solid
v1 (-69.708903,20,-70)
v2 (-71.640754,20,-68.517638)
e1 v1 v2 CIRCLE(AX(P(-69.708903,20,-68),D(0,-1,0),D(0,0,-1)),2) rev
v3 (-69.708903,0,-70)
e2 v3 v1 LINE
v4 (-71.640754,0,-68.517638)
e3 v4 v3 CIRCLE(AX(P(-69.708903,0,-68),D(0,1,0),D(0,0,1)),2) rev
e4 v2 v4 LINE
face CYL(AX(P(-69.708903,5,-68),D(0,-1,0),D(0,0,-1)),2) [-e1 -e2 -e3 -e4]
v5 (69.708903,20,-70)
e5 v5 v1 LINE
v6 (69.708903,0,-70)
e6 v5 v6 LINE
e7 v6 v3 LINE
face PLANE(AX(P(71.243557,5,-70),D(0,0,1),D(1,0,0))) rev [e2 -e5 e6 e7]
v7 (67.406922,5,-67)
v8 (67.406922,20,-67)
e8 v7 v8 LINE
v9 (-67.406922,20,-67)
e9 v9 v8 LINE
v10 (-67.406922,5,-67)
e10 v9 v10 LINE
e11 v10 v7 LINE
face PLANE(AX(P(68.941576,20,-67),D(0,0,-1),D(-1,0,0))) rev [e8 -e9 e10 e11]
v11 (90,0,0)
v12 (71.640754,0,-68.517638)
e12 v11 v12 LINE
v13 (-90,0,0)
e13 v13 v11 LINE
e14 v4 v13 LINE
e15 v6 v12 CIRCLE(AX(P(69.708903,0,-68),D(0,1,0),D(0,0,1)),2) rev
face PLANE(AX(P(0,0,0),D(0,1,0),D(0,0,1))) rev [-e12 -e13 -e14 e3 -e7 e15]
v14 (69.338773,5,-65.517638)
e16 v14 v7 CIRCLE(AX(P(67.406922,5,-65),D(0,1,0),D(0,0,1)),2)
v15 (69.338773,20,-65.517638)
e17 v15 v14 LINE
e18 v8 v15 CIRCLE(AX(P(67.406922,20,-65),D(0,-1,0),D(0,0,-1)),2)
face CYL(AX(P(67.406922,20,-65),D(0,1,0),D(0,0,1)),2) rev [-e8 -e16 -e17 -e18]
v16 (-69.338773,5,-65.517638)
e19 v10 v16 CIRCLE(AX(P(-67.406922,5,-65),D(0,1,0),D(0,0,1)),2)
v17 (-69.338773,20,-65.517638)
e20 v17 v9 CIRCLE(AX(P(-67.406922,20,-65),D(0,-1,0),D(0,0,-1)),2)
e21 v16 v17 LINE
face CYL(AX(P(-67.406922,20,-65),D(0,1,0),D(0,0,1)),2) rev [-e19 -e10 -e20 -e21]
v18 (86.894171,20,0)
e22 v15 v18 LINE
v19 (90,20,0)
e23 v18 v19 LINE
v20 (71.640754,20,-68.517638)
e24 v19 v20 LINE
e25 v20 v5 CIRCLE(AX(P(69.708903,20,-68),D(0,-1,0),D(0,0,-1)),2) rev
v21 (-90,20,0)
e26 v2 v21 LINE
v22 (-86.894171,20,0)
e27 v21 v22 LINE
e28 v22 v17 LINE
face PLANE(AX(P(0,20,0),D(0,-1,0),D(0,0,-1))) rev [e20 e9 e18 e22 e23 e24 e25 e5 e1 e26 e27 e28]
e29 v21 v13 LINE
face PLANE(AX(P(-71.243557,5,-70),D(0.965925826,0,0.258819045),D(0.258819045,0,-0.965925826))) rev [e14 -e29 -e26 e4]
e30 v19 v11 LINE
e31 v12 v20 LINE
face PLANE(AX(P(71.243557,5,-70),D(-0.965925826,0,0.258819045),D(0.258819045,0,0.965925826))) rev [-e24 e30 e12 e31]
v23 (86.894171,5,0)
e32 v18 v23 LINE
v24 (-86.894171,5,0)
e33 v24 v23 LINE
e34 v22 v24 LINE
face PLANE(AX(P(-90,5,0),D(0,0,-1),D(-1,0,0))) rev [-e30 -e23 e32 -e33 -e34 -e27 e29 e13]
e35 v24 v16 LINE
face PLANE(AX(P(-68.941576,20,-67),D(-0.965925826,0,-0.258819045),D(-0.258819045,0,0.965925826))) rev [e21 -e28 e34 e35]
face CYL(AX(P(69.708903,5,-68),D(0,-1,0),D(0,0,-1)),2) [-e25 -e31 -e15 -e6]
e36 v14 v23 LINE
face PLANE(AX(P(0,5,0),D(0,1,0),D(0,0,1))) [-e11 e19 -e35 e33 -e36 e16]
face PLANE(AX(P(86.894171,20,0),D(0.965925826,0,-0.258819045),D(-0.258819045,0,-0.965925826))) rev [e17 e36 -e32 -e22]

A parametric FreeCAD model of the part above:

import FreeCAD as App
import Part
import Sketcher
Q = App.Units.Quantity


def edges_at(feature, points):
    """Names of the edges that pass closest to the given points."""
    edges = feature.Shape.Edges
    near = lambda p: min(range(len(edges)), key=lambda i: edges[i].distToShape(Part.Vertex(*p))[0])
    return sorted({f"Edge{near(p) + 1}" for p in points})


def add_polygon(sketch, points):
    """Adds a closed chain of lines whose ends are joined by coincident constraints."""
    first, n = sketch.GeometryCount, len(points)
    for a, b in zip(points, points[1:] + points[:1]):
        sketch.addGeometry(Part.LineSegment(App.Vector(*a, 0), App.Vector(*b, 0)), False)
    for i in range(n):
        sketch.addConstraint(Sketcher.Constraint("Coincident", first + i, 2, first + (i + 1) % n, 1))

doc = App.newDocument("Part")
body = doc.addObject("PartDesign::Body", "Body")

sketch1 = doc.addObject("Sketcher::SketchObject", "Sketch")
body.addObject(sketch1)
sketch1.AttachmentSupport = (doc.XZ_Plane, [""])
sketch1.MapMode = "FlatFace"
add_polygon(sketch1, [(71, -70), (-71, -70), (-90, 0), (90, 0)])
sketch1.addConstraint(Sketcher.Constraint("Horizontal", 0))
sketch1.addConstraint(Sketcher.Constraint("Horizontal", 2))
sketch1.addConstraint(Sketcher.Constraint("Symmetric", 1, 2, 2, 2, -1, 1))
sketch1.addConstraint(Sketcher.Constraint("Equal", 1, 3))
sketch1.addConstraint(Sketcher.Constraint("DistanceX", 2, 1, 2, 2, Q("180 mm")))
sketch1.addConstraint(Sketcher.Constraint("Angle", 1, Q("105 deg")))
sketch1.addConstraint(Sketcher.Constraint("DistanceY", 0, 2, -1, 1, Q("70 mm")))
pad1 = doc.addObject("PartDesign::Pad", "Pad")
body.addObject(pad1)
pad1.Profile = sketch1
pad1.Length = 5
pad1.Reversed = True

sketch2 = doc.addObject("Sketcher::SketchObject", "Sketch001")
body.addObject(sketch2)
sketch2.AttachmentSupport = (doc.XZ_Plane, [""])
sketch2.MapMode = "FlatFace"
sketch2.AttachmentOffset = App.Placement(App.Vector(0, 0, -5), App.Rotation())
add_polygon(sketch2, [(-68.9, -67), (68.9, -67), (86.9, 0), (90, 0), (71.2, -70), (-71.2, -70), (-90, 0), (-86.9, 0)])
sketch2.addConstraint(Sketcher.Constraint("Horizontal", 0))
sketch2.addConstraint(Sketcher.Constraint("Horizontal", 2))
sketch2.addConstraint(Sketcher.Constraint("Horizontal", 4))
sketch2.addConstraint(Sketcher.Constraint("Horizontal", 6))
sketch2.addConstraint(Sketcher.Constraint("Symmetric", 2, 2, 5, 2, -1, 1))
sketch2.addConstraint(Sketcher.Constraint("Symmetric", 1, 2, 6, 2, -2))
sketch2.addConstraint(Sketcher.Constraint("Parallel", 1, 3))
sketch2.addConstraint(Sketcher.Constraint("Parallel", 5, 7))
sketch2.addConstraint(Sketcher.Constraint("Equal", 3, 5))
sketch2.addConstraint(Sketcher.Constraint("Angle", 1, Q("75 deg")))
sketch2.addConstraint(Sketcher.Constraint("DistanceY", 0, 2, -1, 1, Q("67 mm")))
sketch2.addConstraint(Sketcher.Constraint("DistanceX", -1, 1, 2, 2, Q("90 mm")))
sketch2.addConstraint(Sketcher.Constraint("DistanceY", 3, 2, -1, 1, Q("70 mm")))
sketch2.addConstraint(Sketcher.Constraint("DistanceX", 0, 1, 0, 2, Q("137.883151 mm")))
pad2 = doc.addObject("PartDesign::Pad", "Pad001")
body.addObject(pad2)
pad2.Profile = sketch2
pad2.Length = 15
pad2.Reversed = True
doc.recompute()

fillet = doc.addObject("PartDesign::Fillet", "Fillet")
body.addObject(fillet)
fillet.Base = (pad2, edges_at(pad2, [
    (-68.942, 12.5, -67),
    (68.942, 12.5, -67),
    (-71.244, 10, -70),
    (71.244, 10, -70),
]))
fillet.Radius = 2

doc.recompute()
